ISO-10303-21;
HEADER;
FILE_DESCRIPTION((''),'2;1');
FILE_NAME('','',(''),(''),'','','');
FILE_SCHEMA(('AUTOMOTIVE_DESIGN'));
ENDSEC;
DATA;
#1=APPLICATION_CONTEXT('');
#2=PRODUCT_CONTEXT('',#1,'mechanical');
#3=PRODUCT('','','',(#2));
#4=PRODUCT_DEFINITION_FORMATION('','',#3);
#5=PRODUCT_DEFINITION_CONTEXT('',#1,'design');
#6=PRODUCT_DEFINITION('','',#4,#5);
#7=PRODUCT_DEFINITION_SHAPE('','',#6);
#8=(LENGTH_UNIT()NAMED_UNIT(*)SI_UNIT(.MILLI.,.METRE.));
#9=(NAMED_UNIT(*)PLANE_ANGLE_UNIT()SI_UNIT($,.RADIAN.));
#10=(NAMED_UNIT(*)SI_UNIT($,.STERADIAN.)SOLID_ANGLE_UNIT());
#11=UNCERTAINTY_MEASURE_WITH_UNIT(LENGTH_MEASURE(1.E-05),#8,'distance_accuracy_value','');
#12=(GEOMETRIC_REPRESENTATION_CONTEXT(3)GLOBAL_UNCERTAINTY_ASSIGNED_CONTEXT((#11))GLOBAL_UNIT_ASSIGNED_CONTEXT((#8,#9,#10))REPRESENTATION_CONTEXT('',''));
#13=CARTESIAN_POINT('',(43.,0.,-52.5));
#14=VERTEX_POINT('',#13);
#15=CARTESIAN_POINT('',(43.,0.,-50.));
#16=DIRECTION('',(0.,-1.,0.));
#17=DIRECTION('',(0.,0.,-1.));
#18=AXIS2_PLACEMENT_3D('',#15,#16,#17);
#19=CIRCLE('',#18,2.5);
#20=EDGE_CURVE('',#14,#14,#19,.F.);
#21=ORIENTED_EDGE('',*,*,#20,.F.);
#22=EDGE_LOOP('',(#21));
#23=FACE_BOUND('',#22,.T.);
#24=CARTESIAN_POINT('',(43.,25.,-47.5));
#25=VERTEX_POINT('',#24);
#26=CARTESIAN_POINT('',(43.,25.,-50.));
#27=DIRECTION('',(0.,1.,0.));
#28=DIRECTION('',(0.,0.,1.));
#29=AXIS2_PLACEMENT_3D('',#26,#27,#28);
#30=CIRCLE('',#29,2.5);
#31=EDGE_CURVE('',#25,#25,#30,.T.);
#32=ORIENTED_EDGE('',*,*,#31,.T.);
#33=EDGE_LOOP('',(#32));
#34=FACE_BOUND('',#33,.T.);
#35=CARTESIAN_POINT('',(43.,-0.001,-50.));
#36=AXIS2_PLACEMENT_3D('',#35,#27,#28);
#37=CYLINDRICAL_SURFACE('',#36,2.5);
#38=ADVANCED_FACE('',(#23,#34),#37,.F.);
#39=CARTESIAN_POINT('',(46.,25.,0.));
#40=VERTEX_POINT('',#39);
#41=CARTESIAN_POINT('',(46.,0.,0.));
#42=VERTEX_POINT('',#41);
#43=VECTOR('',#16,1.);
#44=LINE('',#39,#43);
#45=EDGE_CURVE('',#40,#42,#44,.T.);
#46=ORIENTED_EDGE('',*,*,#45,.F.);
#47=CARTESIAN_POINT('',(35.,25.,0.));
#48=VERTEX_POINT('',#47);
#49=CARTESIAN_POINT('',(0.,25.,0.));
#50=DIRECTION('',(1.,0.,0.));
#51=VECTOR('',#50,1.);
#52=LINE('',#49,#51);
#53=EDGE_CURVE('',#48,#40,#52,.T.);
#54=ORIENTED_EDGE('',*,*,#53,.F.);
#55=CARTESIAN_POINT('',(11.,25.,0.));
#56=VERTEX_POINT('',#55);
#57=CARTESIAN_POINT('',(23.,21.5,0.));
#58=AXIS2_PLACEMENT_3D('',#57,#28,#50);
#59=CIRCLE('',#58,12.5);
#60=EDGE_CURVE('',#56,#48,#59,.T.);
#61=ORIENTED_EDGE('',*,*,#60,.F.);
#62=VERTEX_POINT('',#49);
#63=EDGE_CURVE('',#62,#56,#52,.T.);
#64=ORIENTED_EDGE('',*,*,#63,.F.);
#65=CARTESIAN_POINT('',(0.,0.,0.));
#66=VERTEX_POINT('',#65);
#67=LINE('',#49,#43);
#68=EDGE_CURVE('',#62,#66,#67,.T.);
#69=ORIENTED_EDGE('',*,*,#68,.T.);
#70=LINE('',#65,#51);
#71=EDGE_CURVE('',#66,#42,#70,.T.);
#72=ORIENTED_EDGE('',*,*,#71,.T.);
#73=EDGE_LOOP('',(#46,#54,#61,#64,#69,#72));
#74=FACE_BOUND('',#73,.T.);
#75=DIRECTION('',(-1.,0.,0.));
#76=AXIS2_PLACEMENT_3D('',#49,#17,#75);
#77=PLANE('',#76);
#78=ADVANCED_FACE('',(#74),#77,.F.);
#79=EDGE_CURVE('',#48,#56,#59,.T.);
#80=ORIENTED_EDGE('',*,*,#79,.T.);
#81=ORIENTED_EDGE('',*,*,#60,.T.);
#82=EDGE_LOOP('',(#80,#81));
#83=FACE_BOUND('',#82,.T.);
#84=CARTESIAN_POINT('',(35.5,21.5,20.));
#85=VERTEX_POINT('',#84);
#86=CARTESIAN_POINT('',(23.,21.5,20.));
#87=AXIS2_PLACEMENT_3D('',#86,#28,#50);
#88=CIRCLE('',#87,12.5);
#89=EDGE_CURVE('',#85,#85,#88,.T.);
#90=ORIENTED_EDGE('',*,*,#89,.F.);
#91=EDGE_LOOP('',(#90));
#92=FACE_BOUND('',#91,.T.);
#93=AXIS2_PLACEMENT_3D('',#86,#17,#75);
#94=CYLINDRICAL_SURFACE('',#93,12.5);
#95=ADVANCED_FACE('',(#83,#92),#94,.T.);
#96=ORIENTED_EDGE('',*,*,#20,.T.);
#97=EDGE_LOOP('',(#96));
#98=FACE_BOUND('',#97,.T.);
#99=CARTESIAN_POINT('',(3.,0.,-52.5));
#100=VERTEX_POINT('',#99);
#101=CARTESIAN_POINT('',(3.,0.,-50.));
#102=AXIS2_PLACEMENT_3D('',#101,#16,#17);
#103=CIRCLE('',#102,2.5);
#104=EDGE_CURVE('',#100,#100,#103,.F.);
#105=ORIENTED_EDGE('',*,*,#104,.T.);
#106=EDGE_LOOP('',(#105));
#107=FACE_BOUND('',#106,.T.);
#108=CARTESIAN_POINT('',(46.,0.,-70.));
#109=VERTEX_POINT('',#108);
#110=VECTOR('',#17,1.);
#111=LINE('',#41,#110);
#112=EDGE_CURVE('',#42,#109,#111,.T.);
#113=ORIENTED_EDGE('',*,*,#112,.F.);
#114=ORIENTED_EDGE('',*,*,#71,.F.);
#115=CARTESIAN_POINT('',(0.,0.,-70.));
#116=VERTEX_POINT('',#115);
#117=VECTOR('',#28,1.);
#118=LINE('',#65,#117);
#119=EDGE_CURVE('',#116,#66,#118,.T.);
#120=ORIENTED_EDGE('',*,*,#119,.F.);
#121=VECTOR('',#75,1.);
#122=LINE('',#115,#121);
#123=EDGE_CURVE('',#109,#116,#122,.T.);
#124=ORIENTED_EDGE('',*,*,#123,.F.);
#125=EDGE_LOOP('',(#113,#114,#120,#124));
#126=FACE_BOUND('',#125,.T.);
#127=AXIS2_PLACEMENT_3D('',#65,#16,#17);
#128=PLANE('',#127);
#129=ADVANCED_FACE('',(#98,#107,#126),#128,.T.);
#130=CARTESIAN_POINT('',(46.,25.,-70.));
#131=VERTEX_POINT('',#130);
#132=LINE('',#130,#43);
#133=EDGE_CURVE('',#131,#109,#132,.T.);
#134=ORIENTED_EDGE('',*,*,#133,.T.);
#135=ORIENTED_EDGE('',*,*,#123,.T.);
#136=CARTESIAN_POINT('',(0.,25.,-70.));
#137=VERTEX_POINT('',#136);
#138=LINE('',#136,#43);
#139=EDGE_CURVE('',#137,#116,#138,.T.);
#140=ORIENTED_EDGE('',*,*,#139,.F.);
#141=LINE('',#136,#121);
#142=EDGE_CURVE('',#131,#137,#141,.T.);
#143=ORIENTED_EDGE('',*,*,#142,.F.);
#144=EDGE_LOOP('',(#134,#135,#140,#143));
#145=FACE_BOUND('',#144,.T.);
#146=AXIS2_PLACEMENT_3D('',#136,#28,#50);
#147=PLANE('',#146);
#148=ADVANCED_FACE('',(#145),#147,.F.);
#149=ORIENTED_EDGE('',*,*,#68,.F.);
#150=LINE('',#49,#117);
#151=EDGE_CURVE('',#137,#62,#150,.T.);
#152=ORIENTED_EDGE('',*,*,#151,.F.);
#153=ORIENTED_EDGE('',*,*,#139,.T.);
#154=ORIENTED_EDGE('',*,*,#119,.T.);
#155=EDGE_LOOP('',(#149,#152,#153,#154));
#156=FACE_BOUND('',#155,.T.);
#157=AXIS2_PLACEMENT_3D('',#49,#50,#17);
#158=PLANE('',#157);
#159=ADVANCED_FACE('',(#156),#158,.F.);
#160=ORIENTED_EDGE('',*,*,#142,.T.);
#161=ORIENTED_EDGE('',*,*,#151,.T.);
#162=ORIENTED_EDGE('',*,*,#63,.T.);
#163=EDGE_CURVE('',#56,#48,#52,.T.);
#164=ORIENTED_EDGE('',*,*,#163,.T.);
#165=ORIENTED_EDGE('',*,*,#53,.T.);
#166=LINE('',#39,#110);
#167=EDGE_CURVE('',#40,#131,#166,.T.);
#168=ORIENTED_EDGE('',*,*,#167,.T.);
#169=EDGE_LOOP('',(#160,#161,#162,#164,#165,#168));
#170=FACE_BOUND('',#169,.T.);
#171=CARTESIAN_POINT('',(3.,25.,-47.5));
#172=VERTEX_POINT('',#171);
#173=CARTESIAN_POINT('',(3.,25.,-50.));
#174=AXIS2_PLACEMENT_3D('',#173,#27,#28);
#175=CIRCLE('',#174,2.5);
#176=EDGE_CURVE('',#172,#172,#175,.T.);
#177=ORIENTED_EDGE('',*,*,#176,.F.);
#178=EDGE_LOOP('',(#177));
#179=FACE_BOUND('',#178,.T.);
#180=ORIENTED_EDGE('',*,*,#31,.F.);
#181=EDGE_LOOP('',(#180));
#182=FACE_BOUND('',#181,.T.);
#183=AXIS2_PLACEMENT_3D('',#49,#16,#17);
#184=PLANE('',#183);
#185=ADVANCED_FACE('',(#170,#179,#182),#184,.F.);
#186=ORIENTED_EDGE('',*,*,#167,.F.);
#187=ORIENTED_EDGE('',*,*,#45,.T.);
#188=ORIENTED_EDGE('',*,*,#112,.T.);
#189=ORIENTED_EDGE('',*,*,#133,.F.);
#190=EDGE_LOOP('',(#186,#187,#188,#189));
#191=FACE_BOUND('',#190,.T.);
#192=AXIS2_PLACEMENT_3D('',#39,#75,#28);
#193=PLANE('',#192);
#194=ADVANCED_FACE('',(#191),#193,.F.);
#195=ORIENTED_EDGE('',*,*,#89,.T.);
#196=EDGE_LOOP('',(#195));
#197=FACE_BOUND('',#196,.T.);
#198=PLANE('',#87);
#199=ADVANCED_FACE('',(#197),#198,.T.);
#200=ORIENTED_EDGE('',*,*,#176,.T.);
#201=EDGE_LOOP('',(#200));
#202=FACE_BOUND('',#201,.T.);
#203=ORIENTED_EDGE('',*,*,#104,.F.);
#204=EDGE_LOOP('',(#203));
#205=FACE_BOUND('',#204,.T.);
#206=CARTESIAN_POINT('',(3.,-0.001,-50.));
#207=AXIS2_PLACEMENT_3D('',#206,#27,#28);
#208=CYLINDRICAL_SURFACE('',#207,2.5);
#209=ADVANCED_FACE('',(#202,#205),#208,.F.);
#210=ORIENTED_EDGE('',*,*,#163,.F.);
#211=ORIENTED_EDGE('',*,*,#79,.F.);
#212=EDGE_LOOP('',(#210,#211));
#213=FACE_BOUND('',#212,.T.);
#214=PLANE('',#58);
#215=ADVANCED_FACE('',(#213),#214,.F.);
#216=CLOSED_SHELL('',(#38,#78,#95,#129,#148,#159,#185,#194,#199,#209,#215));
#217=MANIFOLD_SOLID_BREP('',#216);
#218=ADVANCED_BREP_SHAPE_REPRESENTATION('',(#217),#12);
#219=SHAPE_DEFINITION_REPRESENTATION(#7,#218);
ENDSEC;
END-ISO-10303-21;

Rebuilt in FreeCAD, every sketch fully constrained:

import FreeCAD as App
import Part
import Sketcher
from FreeCAD import Vector

doc = App.newDocument("Part")
params = doc.addObject("Spreadsheet::Sheet", "Params")
for row, (alias, value) in enumerate([
    ("sketch1_width", "46 mm"),
    ("sketch1_height", "70 mm"),
    ("pad1_length", "25 mm"),
    ("sketch2_diameter", "25 mm"),
    ("pad2_length", "20 mm"),
    ("sketch3_diameter", "5 mm"),
    ("sketch4_diameter", "5 mm"),
], start=1):
    params.set(f"A{row}", alias)
    params.set(f"B{row}", "=" + value)
    params.setAlias(f"B{row}", alias)

body = doc.addObject("PartDesign::Body", "Body")

# Sketch on XZ plane
sketch1 = body.newObject("Sketcher::SketchObject", "Sketch")
sketch1.AttachmentSupport = (doc.getObject("XZ_Plane"), [""])
sketch1.MapMode = "FlatFace"
sketch1.addGeometry([
    Part.LineSegment(Vector(0, -70, 0), Vector(0, 0, 0)),
    Part.LineSegment(Vector(0, 0, 0), Vector(46, 0, 0)),
    Part.LineSegment(Vector(46, 0, 0), Vector(46, -70, 0)),
    Part.LineSegment(Vector(46, -70, 0), Vector(0, -70, 0)),
], False)
sketch1.addConstraint([
    Sketcher.Constraint("Coincident", 0, 2, 1, 1),
    Sketcher.Constraint("Coincident", 1, 2, 2, 1),
    Sketcher.Constraint("Coincident", 2, 2, 3, 1),
    Sketcher.Constraint("Coincident", 3, 2, 0, 1),
    Sketcher.Constraint("Vertical", 0),
    Sketcher.Constraint("Horizontal", 1),
    Sketcher.Constraint("Vertical", 2),
    Sketcher.Constraint("Horizontal", 3),
    Sketcher.Constraint("Coincident", 0, 2, -1, 1),
    Sketcher.Constraint("DistanceX", 1, 1, 1, 2, 46.0),
    Sketcher.Constraint("DistanceY", 0, 1, 0, 2, 70.0),
])
sketch1.setExpression("Constraints[9]", "Params.sketch1_width")
sketch1.setExpression("Constraints[10]", "Params.sketch1_height")
pad1 = body.newObject("PartDesign::Pad", "Pad")
pad1.Profile = sketch1
pad1.setExpression("Length", "Params.pad1_length")
pad1.Reversed = True

# Sketch on XY plane
sketch2 = body.newObject("Sketcher::SketchObject", "Sketch001")
sketch2.AttachmentSupport = (doc.getObject("XY_Plane"), [""])
sketch2.MapMode = "FlatFace"
sketch2.addGeometry(Part.Circle(Vector(23, 21.5, 0), Vector(0, 0, 1), 12.5), False)
sketch2.addConstraint([
    Sketcher.Constraint("Diameter", 0, 25.0),
    Sketcher.Constraint("DistanceX", -1, 1, 0, 3, 23.0),
    Sketcher.Constraint("DistanceY", -1, 1, 0, 3, 21.5),
])
sketch2.setExpression("Constraints[0]", "Params.sketch2_diameter")
pad2 = body.newObject("PartDesign::Pad", "Pad001")
pad2.Profile = sketch2
pad2.setExpression("Length", "Params.pad2_length")

# Sketch on XZ plane
sketch3 = body.newObject("Sketcher::SketchObject", "Sketch002")
sketch3.AttachmentSupport = (doc.getObject("XZ_Plane"), [""])
sketch3.MapMode = "FlatFace"
sketch3.AttachmentOffset = App.Placement(Vector(0, 0, -25), App.Rotation())
sketch3.addGeometry(Part.Circle(Vector(3, -50, 0), Vector(0, 0, 1), 2.5), False)
sketch3.addConstraint([
    Sketcher.Constraint("Diameter", 0, 5.0),
    Sketcher.Constraint("DistanceX", -1, 1, 0, 3, 3.0),
    Sketcher.Constraint("DistanceY", 0, 3, -1, 1, 50.0),
])
sketch3.setExpression("Constraints[0]", "Params.sketch3_diameter")
pocket1 = body.newObject("PartDesign::Pocket", "Pocket")
pocket1.Profile = sketch3
pocket1.Type = "UpToFirst"
pocket1.Reversed = True

# Sketch on XZ plane
sketch4 = body.newObject("Sketcher::SketchObject", "Sketch003")
sketch4.AttachmentSupport = (doc.getObject("XZ_Plane"), [""])
sketch4.MapMode = "FlatFace"
sketch4.AttachmentOffset = App.Placement(Vector(0, 0, -25), App.Rotation())
sketch4.addGeometry(Part.Circle(Vector(43, -50, 0), Vector(0, 0, 1), 2.5), False)
sketch4.addConstraint([
    Sketcher.Constraint("Diameter", 0, 5.0),
    Sketcher.Constraint("DistanceX", -1, 1, 0, 3, 43.0),
    Sketcher.Constraint("DistanceY", 0, 3, -1, 1, 50.0),
])
sketch4.setExpression("Constraints[0]", "Params.sketch4_diameter")
pocket2 = body.newObject("PartDesign::Pocket", "Pocket001")
pocket2.Profile = sketch4
pocket2.Type = "UpToFirst"
pocket2.Reversed = True

doc.recompute()
